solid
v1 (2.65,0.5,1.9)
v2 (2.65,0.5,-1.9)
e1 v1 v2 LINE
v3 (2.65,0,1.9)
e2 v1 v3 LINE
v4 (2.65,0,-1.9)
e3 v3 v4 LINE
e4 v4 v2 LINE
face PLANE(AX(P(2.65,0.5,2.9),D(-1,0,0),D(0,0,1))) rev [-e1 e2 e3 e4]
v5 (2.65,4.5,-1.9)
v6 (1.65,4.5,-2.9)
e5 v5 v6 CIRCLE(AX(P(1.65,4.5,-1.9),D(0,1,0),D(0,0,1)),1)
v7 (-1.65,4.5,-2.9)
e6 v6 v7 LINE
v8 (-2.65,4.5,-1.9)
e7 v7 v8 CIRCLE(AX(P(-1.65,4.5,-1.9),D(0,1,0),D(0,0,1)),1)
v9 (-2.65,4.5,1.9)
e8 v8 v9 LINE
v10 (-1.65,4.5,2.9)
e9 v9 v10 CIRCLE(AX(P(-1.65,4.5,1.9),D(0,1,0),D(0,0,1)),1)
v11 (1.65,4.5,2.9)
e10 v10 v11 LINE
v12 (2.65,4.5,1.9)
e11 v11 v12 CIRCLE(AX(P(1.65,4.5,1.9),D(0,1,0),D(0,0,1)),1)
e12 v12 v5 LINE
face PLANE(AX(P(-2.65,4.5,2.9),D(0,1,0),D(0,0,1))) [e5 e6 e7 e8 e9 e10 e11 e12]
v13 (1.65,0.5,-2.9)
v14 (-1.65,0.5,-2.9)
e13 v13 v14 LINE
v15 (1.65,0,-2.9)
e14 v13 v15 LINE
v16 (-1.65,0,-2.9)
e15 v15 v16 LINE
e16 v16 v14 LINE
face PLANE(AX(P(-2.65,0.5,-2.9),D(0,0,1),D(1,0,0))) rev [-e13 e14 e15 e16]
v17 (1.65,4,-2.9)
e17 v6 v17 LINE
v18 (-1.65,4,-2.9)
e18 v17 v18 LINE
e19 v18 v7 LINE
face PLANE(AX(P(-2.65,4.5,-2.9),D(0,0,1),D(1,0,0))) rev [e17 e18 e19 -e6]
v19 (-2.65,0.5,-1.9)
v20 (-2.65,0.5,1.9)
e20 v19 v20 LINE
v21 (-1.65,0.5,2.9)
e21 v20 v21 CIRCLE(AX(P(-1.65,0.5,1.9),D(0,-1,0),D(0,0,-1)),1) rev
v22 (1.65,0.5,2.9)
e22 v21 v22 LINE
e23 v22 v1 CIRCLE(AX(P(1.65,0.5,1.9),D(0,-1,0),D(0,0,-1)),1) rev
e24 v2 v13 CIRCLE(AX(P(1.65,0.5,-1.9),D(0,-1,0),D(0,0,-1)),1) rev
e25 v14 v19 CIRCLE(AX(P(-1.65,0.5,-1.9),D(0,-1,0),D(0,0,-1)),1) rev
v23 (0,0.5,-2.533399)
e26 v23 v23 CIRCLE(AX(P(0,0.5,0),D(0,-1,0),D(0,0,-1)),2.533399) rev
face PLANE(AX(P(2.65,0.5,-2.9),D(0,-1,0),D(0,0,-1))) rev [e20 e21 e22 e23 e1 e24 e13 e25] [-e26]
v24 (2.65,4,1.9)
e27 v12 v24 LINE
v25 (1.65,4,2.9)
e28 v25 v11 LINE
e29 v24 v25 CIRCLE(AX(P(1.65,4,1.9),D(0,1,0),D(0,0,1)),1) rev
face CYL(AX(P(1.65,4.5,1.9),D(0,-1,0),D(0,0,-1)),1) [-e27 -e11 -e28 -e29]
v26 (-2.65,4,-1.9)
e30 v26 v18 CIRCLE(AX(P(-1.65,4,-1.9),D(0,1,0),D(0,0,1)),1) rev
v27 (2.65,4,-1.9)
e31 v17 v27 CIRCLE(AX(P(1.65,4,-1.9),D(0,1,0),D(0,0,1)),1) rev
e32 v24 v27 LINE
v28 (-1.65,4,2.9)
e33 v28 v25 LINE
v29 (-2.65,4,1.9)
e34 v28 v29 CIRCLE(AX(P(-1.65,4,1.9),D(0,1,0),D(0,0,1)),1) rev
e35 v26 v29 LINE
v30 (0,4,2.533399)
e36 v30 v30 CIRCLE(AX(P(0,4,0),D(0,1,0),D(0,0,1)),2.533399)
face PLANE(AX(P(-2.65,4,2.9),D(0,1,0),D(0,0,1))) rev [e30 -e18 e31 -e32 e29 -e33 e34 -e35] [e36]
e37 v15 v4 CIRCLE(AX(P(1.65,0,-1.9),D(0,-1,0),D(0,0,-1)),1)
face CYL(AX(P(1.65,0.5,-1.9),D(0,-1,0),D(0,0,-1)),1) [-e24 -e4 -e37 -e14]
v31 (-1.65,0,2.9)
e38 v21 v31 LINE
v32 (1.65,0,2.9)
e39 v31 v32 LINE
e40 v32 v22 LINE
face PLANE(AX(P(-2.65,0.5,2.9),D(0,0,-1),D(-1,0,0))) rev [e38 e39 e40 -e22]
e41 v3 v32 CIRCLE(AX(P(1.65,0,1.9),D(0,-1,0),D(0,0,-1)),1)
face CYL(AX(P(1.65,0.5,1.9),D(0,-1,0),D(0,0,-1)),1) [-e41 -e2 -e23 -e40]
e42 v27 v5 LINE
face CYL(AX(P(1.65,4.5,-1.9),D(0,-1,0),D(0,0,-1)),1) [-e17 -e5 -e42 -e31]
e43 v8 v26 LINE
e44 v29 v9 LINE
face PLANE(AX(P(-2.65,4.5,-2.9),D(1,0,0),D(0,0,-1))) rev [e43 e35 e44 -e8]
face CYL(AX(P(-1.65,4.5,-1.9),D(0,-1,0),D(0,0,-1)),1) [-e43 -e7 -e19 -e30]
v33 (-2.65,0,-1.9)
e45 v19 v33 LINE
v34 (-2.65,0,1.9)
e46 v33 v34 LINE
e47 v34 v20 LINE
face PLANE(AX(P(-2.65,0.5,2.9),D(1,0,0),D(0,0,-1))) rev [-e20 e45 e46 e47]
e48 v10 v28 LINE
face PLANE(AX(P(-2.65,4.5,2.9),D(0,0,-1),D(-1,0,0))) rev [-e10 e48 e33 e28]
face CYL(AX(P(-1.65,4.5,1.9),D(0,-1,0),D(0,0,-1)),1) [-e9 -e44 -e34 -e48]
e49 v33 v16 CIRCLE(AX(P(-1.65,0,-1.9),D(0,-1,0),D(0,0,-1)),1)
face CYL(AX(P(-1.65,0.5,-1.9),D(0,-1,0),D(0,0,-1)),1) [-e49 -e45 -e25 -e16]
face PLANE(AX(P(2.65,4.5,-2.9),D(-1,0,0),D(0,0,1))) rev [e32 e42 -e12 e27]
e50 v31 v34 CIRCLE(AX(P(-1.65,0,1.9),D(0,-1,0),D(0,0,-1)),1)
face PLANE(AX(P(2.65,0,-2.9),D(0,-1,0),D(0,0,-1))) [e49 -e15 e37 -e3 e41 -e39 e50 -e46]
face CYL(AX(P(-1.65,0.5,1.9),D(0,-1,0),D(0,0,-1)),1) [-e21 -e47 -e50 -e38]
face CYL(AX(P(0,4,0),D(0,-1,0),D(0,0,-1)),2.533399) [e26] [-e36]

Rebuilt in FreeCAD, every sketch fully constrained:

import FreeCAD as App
import Part
import Sketcher
from FreeCAD import Vector
Q = App.Units.Quantity


def edges_at(feature, points):
    """Names of the edges that pass closest to the given points."""
    edges = feature.Shape.Edges
    near = lambda p: min(range(len(edges)), key=lambda i: edges[i].distToShape(Part.Vertex(*p))[0])
    return sorted({f"Edge{near(p) + 1}" for p in points})

doc = App.newDocument("Part")
body = doc.addObject("PartDesign::Body", "Body")

# Sketch on XZ plane
sketch1 = doc.addObject("Sketcher::SketchObject", "Sketch")
body.addObject(sketch1)
sketch1.AttachmentSupport = (doc.XZ_Plane, [""])
sketch1.MapMode = "FlatFace"
sketch1.addGeometry([
    Part.LineSegment(Vector(-3, -3, 0), Vector(-3, 3, 0)),
    Part.LineSegment(Vector(-3, 3, 0), Vector(3, 3, 0)),
    Part.LineSegment(Vector(3, 3, 0), Vector(3, -3, 0)),
    Part.LineSegment(Vector(3, -3, 0), Vector(-3, -3, 0)),
], False)
sketch1.addConstraint([
    Sketcher.Constraint("Coincident", 0, 2, 1, 1),
    Sketcher.Constraint("Coincident", 1, 2, 2, 1),
    Sketcher.Constraint("Coincident", 2, 2, 3, 1),
    Sketcher.Constraint("Coincident", 3, 2, 0, 1),
    Sketcher.Constraint("Vertical", 0),
    Sketcher.Constraint("Horizontal", 1),
    Sketcher.Constraint("Vertical", 2),
    Sketcher.Constraint("Horizontal", 3),
    Sketcher.Constraint("Symmetric", 0, 2, 2, 2, -1, 1),
    Sketcher.Constraint("DistanceX", 1, 1, 1, 2, Q("5.3 mm")),
    Sketcher.Constraint("DistanceY", 0, 1, 0, 2, Q("5.8 mm")),
])
pad1 = doc.addObject("PartDesign::Pad", "Pad")
body.addObject(pad1)
pad1.Profile = sketch1
pad1.Length = 0.5
pad1.Reversed = True

# Sketch on XZ plane
sketch2 = doc.addObject("Sketcher::SketchObject", "Sketch001")
body.addObject(sketch2)
sketch2.AttachmentSupport = (doc.XZ_Plane, [""])
sketch2.MapMode = "FlatFace"
sketch2.AttachmentOffset = App.Placement(Vector(0, 0, -0.5), App.Rotation())
sketch2.addGeometry(Part.Circle(Vector(0, 0, 0), Vector(0, 0, 1), 2.5), False)
sketch2.addConstraint([
    Sketcher.Constraint("Coincident", 0, 3, -1, 1),
    Sketcher.Constraint("Diameter", 0, Q("5.066798 mm")),
])
pad2 = doc.addObject("PartDesign::Pad", "Pad001")
body.addObject(pad2)
pad2.Profile = sketch2
pad2.Length = 3.5
pad2.Reversed = True

# Sketch on XZ plane
sketch3 = doc.addObject("Sketcher::SketchObject", "Sketch002")
body.addObject(sketch3)
sketch3.AttachmentSupport = (doc.XZ_Plane, [""])
sketch3.MapMode = "FlatFace"
sketch3.AttachmentOffset = App.Placement(Vector(0, 0, -4), App.Rotation())
sketch3.addGeometry([
    Part.LineSegment(Vector(3, 3, 0), Vector(3, -3, 0)),
    Part.LineSegment(Vector(3, -3, 0), Vector(-3, -3, 0)),
    Part.LineSegment(Vector(-3, -3, 0), Vector(-3, 3, 0)),
    Part.LineSegment(Vector(-3, 3, 0), Vector(3, 3, 0)),
], False)
sketch3.addConstraint([
    Sketcher.Constraint("Coincident", 0, 2, 1, 1),
    Sketcher.Constraint("Coincident", 1, 2, 2, 1),
    Sketcher.Constraint("Coincident", 2, 2, 3, 1),
    Sketcher.Constraint("Coincident", 3, 2, 0, 1),
    Sketcher.Constraint("Vertical", 0),
    Sketcher.Constraint("Horizontal", 1),
    Sketcher.Constraint("Vertical", 2),
    Sketcher.Constraint("Horizontal", 3),
    Sketcher.Constraint("Symmetric", 0, 2, 2, 2, -1, 1),
    Sketcher.Constraint("DistanceX", 1, 2, 1, 1, Q("5.3 mm")),
    Sketcher.Constraint("DistanceY", 0, 2, 0, 1, Q("5.8 mm")),
])
pad3 = doc.addObject("PartDesign::Pad", "Pad002")
body.addObject(pad3)
pad3.Profile = sketch3
pad3.Length = 0.5
pad3.Reversed = True
doc.recompute()

fillet = doc.addObject("PartDesign::Fillet", "Fillet")
body.addObject(fillet)
fillet.Base = (pad3, edges_at(pad3, [
    (-2.65, 4.25, -2.9),
    (-2.65, 4.25, 2.9),
    (2.65, 4.25, 2.9),
    (2.65, 4.25, -2.9),
    (2.65, 0.25, 2.9),
    (-2.65, 0.25, 2.9),
    (-2.65, 0.25, -2.9),
    (2.65, 0.25, -2.9),
]))
fillet.Radius = 1

doc.recompute()
